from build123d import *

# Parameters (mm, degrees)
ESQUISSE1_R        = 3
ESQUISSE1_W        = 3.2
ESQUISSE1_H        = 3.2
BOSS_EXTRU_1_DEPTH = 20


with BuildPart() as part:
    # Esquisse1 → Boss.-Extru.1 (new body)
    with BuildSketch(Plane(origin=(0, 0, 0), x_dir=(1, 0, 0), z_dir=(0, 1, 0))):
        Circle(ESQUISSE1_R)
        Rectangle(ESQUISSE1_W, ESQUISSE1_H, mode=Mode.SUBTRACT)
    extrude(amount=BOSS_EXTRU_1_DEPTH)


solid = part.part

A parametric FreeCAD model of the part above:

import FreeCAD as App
import Part
import Sketcher
from FreeCAD import Vector
Q = App.Units.Quantity


def add_polygon(sketch, points):
    """Adds a closed chain of lines whose ends are joined by coincident constraints."""
    first, n = sketch.GeometryCount, len(points)
    for a, b in zip(points, points[1:] + points[:1]):
        sketch.addGeometry(Part.LineSegment(App.Vector(*a, 0), App.Vector(*b, 0)), False)
    for i in range(n):
        sketch.addConstraint(Sketcher.Constraint("Coincident", first + i, 2, first + (i + 1) % n, 1))

doc = App.newDocument("Part")
body = doc.addObject("PartDesign::Body", "Body")

# Sketch on XZ plane
sketch1 = body.newObject("Sketcher::SketchObject", "Sketch")
sketch1.AttachmentSupport = (doc.getObject("XZ_Plane"), [""])
sketch1.MapMode = "FlatFace"
sketch1.addGeometry(Part.Circle(Vector(0, 0, 0), Vector(0, 0, 1), 3), False)  # 0
add_polygon(sketch1, [(1.6, 1.6), (-1.6, 1.6), (-1.6, -1.6), (1.6, -1.6)])  # lines 1-4
sketch1.addConstraint([
    Sketcher.Constraint("Horizontal", 1),
    Sketcher.Constraint("Vertical", 2),
    Sketcher.Constraint("Horizontal", 3),
    Sketcher.Constraint("Vertical", 4),
    Sketcher.Constraint("Coincident", 0, 3, -1, 1),
    Sketcher.Constraint("Symmetric", 1, 2, 3, 2, -1, 1),
    Sketcher.Constraint("Equal", 3, 2),
    Sketcher.Constraint("Diameter", 0, Q("6 mm")),
    Sketcher.Constraint("DistanceX", 1, 2, 1, 1, Q("3.2 mm")),
])
pad1 = body.newObject("PartDesign::Pad", "Pad")
pad1.Profile = sketch1
pad1.Length = 20
pad1.Reversed = True

doc.recompute()
